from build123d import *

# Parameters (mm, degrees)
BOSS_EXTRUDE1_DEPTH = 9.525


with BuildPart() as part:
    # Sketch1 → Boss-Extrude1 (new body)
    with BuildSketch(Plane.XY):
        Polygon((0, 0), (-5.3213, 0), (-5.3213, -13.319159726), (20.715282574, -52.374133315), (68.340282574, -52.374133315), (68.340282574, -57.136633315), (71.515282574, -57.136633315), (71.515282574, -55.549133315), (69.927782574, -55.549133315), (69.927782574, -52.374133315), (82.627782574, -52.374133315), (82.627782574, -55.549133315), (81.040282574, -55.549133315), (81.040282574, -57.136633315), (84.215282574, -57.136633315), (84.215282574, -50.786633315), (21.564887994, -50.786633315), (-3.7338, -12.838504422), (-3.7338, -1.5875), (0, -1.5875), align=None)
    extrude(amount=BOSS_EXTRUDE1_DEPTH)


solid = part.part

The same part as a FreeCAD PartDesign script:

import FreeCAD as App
import Part
import Sketcher
Q = App.Units.Quantity

doc = App.newDocument("Part")
body = doc.addObject("PartDesign::Body", "Body")

sketch1 = doc.addObject("Sketcher::SketchObject", "Sketch")
body.addObject(sketch1)
sketch1.AttachmentSupport = (doc.XY_Plane, [""])
sketch1.MapMode = "FlatFace"
sketch1.addGeometry(Part.LineSegment(App.Vector(0, 0, 0), App.Vector(-5.3, 0, 0)), False)
sketch1.addGeometry(Part.LineSegment(App.Vector(-5.3, 0, 0), App.Vector(-5.3, -13.3, 0)), False)
sketch1.addGeometry(Part.LineSegment(App.Vector(-5.3, -13.3, 0), App.Vector(20.7, -52.4, 0)), False)
sketch1.addGeometry(Part.LineSegment(App.Vector(20.7, -52.4, 0), App.Vector(68.3, -52.4, 0)), False)
sketch1.addGeometry(Part.LineSegment(App.Vector(68.3, -52.4, 0), App.Vector(68.3, -57.1, 0)), False)
sketch1.addGeometry(Part.LineSegment(App.Vector(68.3, -57.1, 0), App.Vector(71.5, -57.1, 0)), False)
sketch1.addGeometry(Part.LineSegment(App.Vector(71.5, -57.1, 0), App.Vector(71.5, -55.5, 0)), False)
sketch1.addGeometry(Part.LineSegment(App.Vector(71.5, -55.5, 0), App.Vector(69.9, -55.5, 0)), False)
sketch1.addGeometry(Part.LineSegment(App.Vector(69.9, -55.5, 0), App.Vector(69.9, -52.4, 0)), False)
sketch1.addGeometry(Part.LineSegment(App.Vector(69.9, -52.4, 0), App.Vector(82.6, -52.4, 0)), False)
sketch1.addGeometry(Part.LineSegment(App.Vector(82.6, -52.4, 0), App.Vector(82.6, -55.5, 0)), False)
sketch1.addGeometry(Part.LineSegment(App.Vector(82.6, -55.5, 0), App.Vector(81, -55.5, 0)), False)
sketch1.addGeometry(Part.LineSegment(App.Vector(81, -55.5, 0), App.Vector(81, -57.1, 0)), False)
sketch1.addGeometry(Part.LineSegment(App.Vector(81, -57.1, 0), App.Vector(84.2, -57.1, 0)), False)
sketch1.addGeometry(Part.LineSegment(App.Vector(84.2, -57.1, 0), App.Vector(84.2, -50.8, 0)), False)
sketch1.addGeometry(Part.LineSegment(App.Vector(84.2, -50.8, 0), App.Vector(21.6, -50.8, 0)), False)
sketch1.addGeometry(Part.LineSegment(App.Vector(21.6, -50.8, 0), App.Vector(-3.7, -12.8, 0)), False)
sketch1.addGeometry(Part.LineSegment(App.Vector(-3.7, -12.8, 0), App.Vector(-3.7, -1.6, 0)), False)
sketch1.addGeometry(Part.LineSegment(App.Vector(-3.7, -1.6, 0), App.Vector(0, -1.6, 0)), False)
sketch1.addGeometry(Part.LineSegment(App.Vector(0, -1.6, 0), App.Vector(0, 0, 0)), False)
sketch1.addConstraint(Sketcher.Constraint("Coincident", 0, 2, 1, 1))
sketch1.addConstraint(Sketcher.Constraint("Coincident", 1, 2, 2, 1))
sketch1.addConstraint(Sketcher.Constraint("Coincident", 2, 2, 3, 1))
sketch1.addConstraint(Sketcher.Constraint("Coincident", 3, 2, 4, 1))
sketch1.addConstraint(Sketcher.Constraint("Coincident", 4, 2, 5, 1))
sketch1.addConstraint(Sketcher.Constraint("Coincident", 5, 2, 6, 1))
sketch1.addConstraint(Sketcher.Constraint("Coincident", 6, 2, 7, 1))
sketch1.addConstraint(Sketcher.Constraint("Coincident", 7, 2, 8, 1))
sketch1.addConstraint(Sketcher.Constraint("Coincident", 8, 2, 9, 1))
sketch1.addConstraint(Sketcher.Constraint("Coincident", 9, 2, 10, 1))
sketch1.addConstraint(Sketcher.Constraint("Coincident", 10, 2, 11, 1))
sketch1.addConstraint(Sketcher.Constraint("Coincident", 11, 2, 12, 1))
sketch1.addConstraint(Sketcher.Constraint("Coincident", 12, 2, 13, 1))
sketch1.addConstraint(Sketcher.Constraint("Coincident", 13, 2, 14, 1))
sketch1.addConstraint(Sketcher.Constraint("Coincident", 14, 2, 15, 1))
sketch1.addConstraint(Sketcher.Constraint("Coincident", 15, 2, 16, 1))
sketch1.addConstraint(Sketcher.Constraint("Coincident", 16, 2, 17, 1))
sketch1.addConstraint(Sketcher.Constraint("Coincident", 17, 2, 18, 1))
sketch1.addConstraint(Sketcher.Constraint("Coincident", 18, 2, 19, 1))
sketch1.addConstraint(Sketcher.Constraint("Coincident", 19, 2, 0, 1))
sketch1.addConstraint(Sketcher.Constraint("Horizontal", 0))
sketch1.addConstraint(Sketcher.Constraint("Vertical", 1))
sketch1.addConstraint(Sketcher.Constraint("Horizontal", 3))
sketch1.addConstraint(Sketcher.Constraint("Vertical", 4))
sketch1.addConstraint(Sketcher.Constraint("Horizontal", 5))
sketch1.addConstraint(Sketcher.Constraint("Vertical", 6))
sketch1.addConstraint(Sketcher.Constraint("Horizontal", 7))
sketch1.addConstraint(Sketcher.Constraint("Vertical", 8))
sketch1.addConstraint(Sketcher.Constraint("Horizontal", 9))
sketch1.addConstraint(Sketcher.Constraint("Vertical", 10))
sketch1.addConstraint(Sketcher.Constraint("Horizontal", 11))
sketch1.addConstraint(Sketcher.Constraint("Vertical", 12))
sketch1.addConstraint(Sketcher.Constraint("Horizontal", 13))
sketch1.addConstraint(Sketcher.Constraint("Vertical", 14))
sketch1.addConstraint(Sketcher.Constraint("Horizontal", 15))
sketch1.addConstraint(Sketcher.Constraint("Vertical", 17))
sketch1.addConstraint(Sketcher.Constraint("Horizontal", 18))
sketch1.addConstraint(Sketcher.Constraint("Vertical", 19))
sketch1.addConstraint(Sketcher.Constraint("Coincident", 19, 2, -1, 1))
sketch1.addConstraint(Sketcher.Constraint("Parallel", 2, 16))
sketch1.addConstraint(Sketcher.Constraint("Horizontal", 3, 2, 8, 2))
sketch1.addConstraint(Sketcher.Constraint("Horizontal", 7, 2, 10, 2))
sketch1.addConstraint(Sketcher.Constraint("Horizontal", 5, 2, 12, 2))
sketch1.addConstraint(Sketcher.Constraint("Equal", 7, 11))
sketch1.addConstraint(Sketcher.Constraint("Equal", 5, 13))
sketch1.addConstraint(Sketcher.Constraint("Equal", 11, 6))
sketch1.addConstraint(Sketcher.Constraint("Equal", 13, 8))
sketch1.addConstraint(Sketcher.Constraint("Equal", 12, 19))
sketch1.addConstraint(Sketcher.Constraint("DistanceX", 9, 1, 9, 2, Q("0.5 in")))
sketch1.addConstraint(Sketcher.Constraint("DistanceX", 2, 2, 5, 2, Q("2 in")))
sketch1.addConstraint(Sketcher.Constraint("DistanceY", 14, 1, 14, 2, Q("0.25 in")))
sketch1.addConstraint(Sketcher.Constraint("DistanceX", 5, 2, 13, 2, Q("0.5 in")))
sketch1.addConstraint(Sketcher.Constraint("DistanceX", 3, 1, 3, 2, Q("1.875 in")))
sketch1.addConstraint(Sketcher.Constraint("DistanceX", 18, 1, 18, 2, Q("0.147 in")))
sketch1.addConstraint(Sketcher.Constraint("Angle", 2, Q("-56.31 deg")))
sketch1.addConstraint(Sketcher.Constraint("DistanceX", 0, 2, 0, 1, Q("0.2095 in")))
sketch1.addConstraint(Sketcher.Constraint("Distance", 2, 46.9382))
sketch1.addConstraint(Sketcher.Constraint("DistanceY", 1, 2, 1, 1, 13.31916))
sketch1.addConstraint(Sketcher.Constraint("Distance", 16, 45.607939))
pad1 = doc.addObject("PartDesign::Pad", "Pad")
body.addObject(pad1)
pad1.Profile = sketch1
pad1.Length = Q("0.375 in")

doc.recompute()
